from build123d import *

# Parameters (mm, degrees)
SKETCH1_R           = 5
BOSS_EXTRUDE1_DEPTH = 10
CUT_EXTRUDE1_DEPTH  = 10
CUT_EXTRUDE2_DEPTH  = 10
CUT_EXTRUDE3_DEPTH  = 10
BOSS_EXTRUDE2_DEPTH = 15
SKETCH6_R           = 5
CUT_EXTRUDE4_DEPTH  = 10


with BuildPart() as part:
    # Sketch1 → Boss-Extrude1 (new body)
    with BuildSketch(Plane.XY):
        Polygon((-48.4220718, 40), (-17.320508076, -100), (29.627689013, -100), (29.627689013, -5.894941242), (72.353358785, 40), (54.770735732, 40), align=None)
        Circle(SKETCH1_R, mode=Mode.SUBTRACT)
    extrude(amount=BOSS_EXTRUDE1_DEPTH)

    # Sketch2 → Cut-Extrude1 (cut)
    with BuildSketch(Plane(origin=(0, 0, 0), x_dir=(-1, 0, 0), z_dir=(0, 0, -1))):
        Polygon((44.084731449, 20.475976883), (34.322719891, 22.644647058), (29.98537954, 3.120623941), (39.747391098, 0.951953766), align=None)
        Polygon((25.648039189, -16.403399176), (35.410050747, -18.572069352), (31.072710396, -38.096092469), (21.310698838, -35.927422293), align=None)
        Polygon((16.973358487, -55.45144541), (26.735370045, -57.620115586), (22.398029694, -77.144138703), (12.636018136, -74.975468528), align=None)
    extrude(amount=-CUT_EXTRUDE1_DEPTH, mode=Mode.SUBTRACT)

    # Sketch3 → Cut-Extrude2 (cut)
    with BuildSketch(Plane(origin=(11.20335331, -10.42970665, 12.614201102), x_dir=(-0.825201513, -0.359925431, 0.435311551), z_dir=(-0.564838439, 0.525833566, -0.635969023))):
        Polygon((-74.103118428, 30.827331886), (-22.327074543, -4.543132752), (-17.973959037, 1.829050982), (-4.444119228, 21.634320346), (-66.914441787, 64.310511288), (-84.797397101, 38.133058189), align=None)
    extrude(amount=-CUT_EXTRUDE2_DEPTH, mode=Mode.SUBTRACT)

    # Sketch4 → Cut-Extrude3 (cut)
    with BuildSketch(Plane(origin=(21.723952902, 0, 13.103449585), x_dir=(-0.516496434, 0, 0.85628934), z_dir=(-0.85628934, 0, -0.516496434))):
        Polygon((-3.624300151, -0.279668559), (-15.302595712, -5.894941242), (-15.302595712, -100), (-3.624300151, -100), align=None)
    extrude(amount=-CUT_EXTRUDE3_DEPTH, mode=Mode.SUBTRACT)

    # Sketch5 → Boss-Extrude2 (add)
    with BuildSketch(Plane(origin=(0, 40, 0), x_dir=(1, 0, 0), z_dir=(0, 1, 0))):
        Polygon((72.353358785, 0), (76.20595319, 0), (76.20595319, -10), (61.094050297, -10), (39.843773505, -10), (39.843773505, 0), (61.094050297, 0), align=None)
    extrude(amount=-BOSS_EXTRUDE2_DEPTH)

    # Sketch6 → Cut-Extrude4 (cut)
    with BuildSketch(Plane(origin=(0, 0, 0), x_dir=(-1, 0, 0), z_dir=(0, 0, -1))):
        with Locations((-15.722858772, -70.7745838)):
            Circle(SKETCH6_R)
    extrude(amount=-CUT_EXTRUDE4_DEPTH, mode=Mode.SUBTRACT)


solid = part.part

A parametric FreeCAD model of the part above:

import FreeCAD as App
import Part
import Sketcher

V = App.Vector
Q = App.Units.Quantity


def add_polygon(sketch, points):
    """Adds a closed chain of lines whose ends are joined by coincident constraints."""
    first, n = sketch.GeometryCount, len(points)
    for a, b in zip(points, points[1:] + points[:1]):
        sketch.addGeometry(Part.LineSegment(App.Vector(*a, 0), App.Vector(*b, 0)), False)
    for i in range(n):
        sketch.addConstraint(Sketcher.Constraint("Coincident", first + i, 2, first + (i + 1) % n, 1))

doc = App.newDocument("Part")
body = doc.addObject("PartDesign::Body", "Body")

sketch1 = body.newObject("Sketcher::SketchObject", "Sketch")
sketch1.AttachmentSupport = (doc.getObject("XY_Plane"), [""])
sketch1.MapMode = "FlatFace"
add_polygon(sketch1, [(-48, 40), (-17, -100), (30, -100), (30, -6), (72, 40)])
sketch1.addGeometry(Part.Circle(V(0, 0, 0), V(0, 0, 1), 5), False)
sketch1.addConstraint(Sketcher.Constraint("Horizontal", 1))
sketch1.addConstraint(Sketcher.Constraint("Vertical", 2))
sketch1.addConstraint(Sketcher.Constraint("Horizontal", 4))
sketch1.addConstraint(Sketcher.Constraint("Coincident", 5, 3, -1, 1))
sketch1.addConstraint(Sketcher.Constraint("Diameter", 5, Q("10 mm")))
sketch1.addConstraint(Sketcher.Constraint("DistanceY", 0, 2, -1, 1, Q("100 mm")))
sketch1.addConstraint(Sketcher.Constraint("DistanceY", -1, 1, 3, 2, Q("40 mm")))
sketch1.addConstraint(Sketcher.Constraint("DistanceX", 4, 2, 4, 1, Q("120.775431 mm")))
sketch1.addConstraint(Sketcher.Constraint("DistanceY", 2, 1, 2, 2, Q("94.105059 mm")))
sketch1.addConstraint(Sketcher.Constraint("DistanceX", 1, 1, 1, 2, Q("46.948197 mm")))
sketch1.addConstraint(Sketcher.Constraint("DistanceX", 0, 2, -1, 1, Q("17.320508 mm")))
sketch1.addConstraint(Sketcher.Constraint("DistanceX", -1, 1, 3, 2, Q("72.353359 mm")))
pad1 = body.newObject("PartDesign::Pad", "Pad")
pad1.Profile = sketch1
pad1.Length = 10

sketch2 = body.newObject("Sketcher::SketchObject", "Sketch001")
sketch2.AttachmentSupport = (doc.getObject("XY_Plane"), [""])
sketch2.MapMode = "FlatFace"
add_polygon(sketch2, [(-44, 20), (-34, 23), (-30, 3), (-40, 1)])
add_polygon(sketch2, [(-35, -19), (-26, -16), (-21, -36), (-31, -38)])
add_polygon(sketch2, [(-27, -58), (-17, -55), (-13, -75), (-22, -77)])
sketch2.addConstraint(Sketcher.Constraint("Perpendicular", 0, 1))
sketch2.addConstraint(Sketcher.Constraint("Perpendicular", 1, 2))
sketch2.addConstraint(Sketcher.Constraint("Perpendicular", 2, 3))
sketch2.addConstraint(Sketcher.Constraint("Perpendicular", 3, 4))
sketch2.addConstraint(Sketcher.Constraint("Perpendicular", 4, 5))
sketch2.addConstraint(Sketcher.Constraint("Perpendicular", 5, 6))
sketch2.addConstraint(Sketcher.Constraint("Perpendicular", 6, 7))
sketch2.addConstraint(Sketcher.Constraint("Perpendicular", 7, 8))
sketch2.addConstraint(Sketcher.Constraint("Perpendicular", 8, 9))
sketch2.addConstraint(Sketcher.Constraint("Perpendicular", 9, 10))
sketch2.addConstraint(Sketcher.Constraint("Perpendicular", 10, 11))
sketch2.addConstraint(Sketcher.Constraint("Equal", 2, 4))
sketch2.addConstraint(Sketcher.Constraint("Equal", 3, 5))
sketch2.addConstraint(Sketcher.Constraint("Equal", 6, 8))
sketch2.addConstraint(Sketcher.Constraint("Equal", 7, 9))
sketch2.addConstraint(Sketcher.Constraint("Distance", 0, Q("10 mm")))
sketch2.addConstraint(Sketcher.Constraint("Distance", 1, Q("20 mm")))
sketch2.addConstraint(Sketcher.Constraint("DistanceY", 4, 2, -1, 1, Q("16.403399 mm")))
sketch2.addConstraint(Sketcher.Constraint("DistanceX", 5, 2, -1, 1, Q("21.310699 mm")))
sketch2.addConstraint(Sketcher.Constraint("DistanceY", 5, 2, 3, 2, Q("56.403399 mm")))
sketch2.addConstraint(Sketcher.Constraint("DistanceY", 9, 2, 7, 2, Q("56.403399 mm")))
sketch2.addConstraint(Sketcher.Constraint("DistanceX", 0, 2, -1, 1, Q("34.32272 mm")))
sketch2.addConstraint(Sketcher.Constraint("DistanceX", 1, 2, -1, 1, Q("29.98538 mm")))
sketch2.addConstraint(Sketcher.Constraint("DistanceX", 8, 2, -1, 1, Q("16.973358 mm")))
pocket1 = body.newObject("PartDesign::Pocket", "Pocket")
pocket1.Profile = sketch2
pocket1.Length = 10
pocket1.Reversed = True

sketch3 = body.newObject("Sketcher::SketchObject", "Sketch002")
sketch3.Placement = App.Placement(V(11.203353, -10.429707, 12.614201), App.Rotation(V(-0.825201513, -0.359925431, 0.435311551), V(0, 0.770683297, 0.637218373), V(-0.564838439, 0.525833566, -0.635969023), "ZXY"))
add_polygon(sketch3, [(-74, 31), (-22, -5), (-18, 2), (-4, 22), (-67, 64), (-85, 38)])
sketch3.addConstraint(Sketcher.Constraint("Perpendicular", 0, 1))
sketch3.addConstraint(Sketcher.Constraint("Parallel", 1, 2))
sketch3.addConstraint(Sketcher.Constraint("Perpendicular", 2, 3))
sketch3.addConstraint(Sketcher.Constraint("Perpendicular", 3, 4))
sketch3.addConstraint(Sketcher.Constraint("Perpendicular", 4, 5))
sketch3.addConstraint(Sketcher.Constraint("DistanceX", 5, 2, 2, 2, Q("69.658999 mm")))
sketch3.addConstraint(Sketcher.Constraint("Distance", 2, Q("23.985522 mm")))
sketch3.addConstraint(Sketcher.Constraint("Distance", 3, Q("75.655789 mm")))
sketch3.addConstraint(Sketcher.Constraint("DistanceX", 1, 2, -1, 1, Q("17.973959 mm")))
sketch3.addConstraint(Sketcher.Constraint("DistanceY", -1, 1, 1, 2, Q("1.829051 mm")))
sketch3.addConstraint(Sketcher.Constraint("DistanceX", 2, 2, -1, 1, Q("4.444119 mm")))
sketch3.addConstraint(Sketcher.Constraint("DistanceY", -1, 1, 4, 2, Q("38.133058 mm")))
pocket2 = body.newObject("PartDesign::Pocket", "Pocket001")
pocket2.Profile = sketch3
pocket2.Length = 10

sketch4 = body.newObject("Sketcher::SketchObject", "Sketch003")
sketch4.Placement = App.Placement(V(21.723953, 0, 13.10345), App.Rotation(V(-0.516496434, 0, 0.85628934), V(0, 1, 0), V(-0.85628934, 0, -0.516496434), "ZXY"))
add_polygon(sketch4, [(-4, 0), (-15, -6), (-15, -100), (-4, -100)])
sketch4.addConstraint(Sketcher.Constraint("Vertical", 1))
sketch4.addConstraint(Sketcher.Constraint("Horizontal", 2))
sketch4.addConstraint(Sketcher.Constraint("Vertical", 3))
sketch4.addConstraint(Sketcher.Constraint("DistanceY", 1, 2, -1, 1, Q("100 mm")))
sketch4.addConstraint(Sketcher.Constraint("DistanceY", 1, 2, 1, 1, Q("94.105059 mm")))
sketch4.addConstraint(Sketcher.Constraint("DistanceY", 3, 1, 3, 2, Q("99.720331 mm")))
sketch4.addConstraint(Sketcher.Constraint("DistanceX", 2, 2, -1, 1, Q("3.6243 mm")))
sketch4.addConstraint(Sketcher.Constraint("Distance", 0, Q("12.958159 mm")))
pocket3 = body.newObject("PartDesign::Pocket", "Pocket002")
pocket3.Profile = sketch4
pocket3.Length = 10

sketch5 = body.newObject("Sketcher::SketchObject", "Sketch004")
sketch5.AttachmentSupport = (doc.getObject("XZ_Plane"), [""])
sketch5.MapMode = "FlatFace"
sketch5.AttachmentOffset = App.Placement(V(0, 0, -40), App.Rotation())
add_polygon(sketch5, [(76, 0), (40, 0), (40, 10), (76, 10)])
sketch5.addConstraint(Sketcher.Constraint("Horizontal", 0))
sketch5.addConstraint(Sketcher.Constraint("Vertical", 1))
sketch5.addConstraint(Sketcher.Constraint("Horizontal", 2))
sketch5.addConstraint(Sketcher.Constraint("Vertical", 3))
sketch5.addConstraint(Sketcher.Constraint("PointOnObject", 0, 2, -1))
sketch5.addConstraint(Sketcher.Constraint("DistanceY", 1, 1, 1, 2, Q("10 mm")))
sketch5.addConstraint(Sketcher.Constraint("DistanceX", 0, 2, 0, 1, Q("36.36218 mm")))
sketch5.addConstraint(Sketcher.Constraint("DistanceX", -1, 1, 0, 2, Q("39.843774 mm")))
pad2 = body.newObject("PartDesign::Pad", "Pad001")
pad2.Profile = sketch5
pad2.Length = 15

sketch6 = body.newObject("Sketcher::SketchObject", "Sketch005")
sketch6.AttachmentSupport = (doc.getObject("XY_Plane"), [""])
sketch6.MapMode = "FlatFace"
sketch6.addGeometry(Part.Circle(V(16, -71, 0), V(0, 0, 1), 5), False)
sketch6.addConstraint(Sketcher.Constraint("Diameter", 0, Q("10 mm")))
sketch6.addConstraint(Sketcher.Constraint("DistanceX", -1, 1, 0, 3, Q("15.722859 mm")))
sketch6.addConstraint(Sketcher.Constraint("DistanceY", 0, 3, -1, 1, Q("70.774584 mm")))
pocket4 = body.newObject("PartDesign::Pocket", "Pocket003")
pocket4.Profile = sketch6
pocket4.Length = 10
pocket4.Reversed = True

doc.recompute()
